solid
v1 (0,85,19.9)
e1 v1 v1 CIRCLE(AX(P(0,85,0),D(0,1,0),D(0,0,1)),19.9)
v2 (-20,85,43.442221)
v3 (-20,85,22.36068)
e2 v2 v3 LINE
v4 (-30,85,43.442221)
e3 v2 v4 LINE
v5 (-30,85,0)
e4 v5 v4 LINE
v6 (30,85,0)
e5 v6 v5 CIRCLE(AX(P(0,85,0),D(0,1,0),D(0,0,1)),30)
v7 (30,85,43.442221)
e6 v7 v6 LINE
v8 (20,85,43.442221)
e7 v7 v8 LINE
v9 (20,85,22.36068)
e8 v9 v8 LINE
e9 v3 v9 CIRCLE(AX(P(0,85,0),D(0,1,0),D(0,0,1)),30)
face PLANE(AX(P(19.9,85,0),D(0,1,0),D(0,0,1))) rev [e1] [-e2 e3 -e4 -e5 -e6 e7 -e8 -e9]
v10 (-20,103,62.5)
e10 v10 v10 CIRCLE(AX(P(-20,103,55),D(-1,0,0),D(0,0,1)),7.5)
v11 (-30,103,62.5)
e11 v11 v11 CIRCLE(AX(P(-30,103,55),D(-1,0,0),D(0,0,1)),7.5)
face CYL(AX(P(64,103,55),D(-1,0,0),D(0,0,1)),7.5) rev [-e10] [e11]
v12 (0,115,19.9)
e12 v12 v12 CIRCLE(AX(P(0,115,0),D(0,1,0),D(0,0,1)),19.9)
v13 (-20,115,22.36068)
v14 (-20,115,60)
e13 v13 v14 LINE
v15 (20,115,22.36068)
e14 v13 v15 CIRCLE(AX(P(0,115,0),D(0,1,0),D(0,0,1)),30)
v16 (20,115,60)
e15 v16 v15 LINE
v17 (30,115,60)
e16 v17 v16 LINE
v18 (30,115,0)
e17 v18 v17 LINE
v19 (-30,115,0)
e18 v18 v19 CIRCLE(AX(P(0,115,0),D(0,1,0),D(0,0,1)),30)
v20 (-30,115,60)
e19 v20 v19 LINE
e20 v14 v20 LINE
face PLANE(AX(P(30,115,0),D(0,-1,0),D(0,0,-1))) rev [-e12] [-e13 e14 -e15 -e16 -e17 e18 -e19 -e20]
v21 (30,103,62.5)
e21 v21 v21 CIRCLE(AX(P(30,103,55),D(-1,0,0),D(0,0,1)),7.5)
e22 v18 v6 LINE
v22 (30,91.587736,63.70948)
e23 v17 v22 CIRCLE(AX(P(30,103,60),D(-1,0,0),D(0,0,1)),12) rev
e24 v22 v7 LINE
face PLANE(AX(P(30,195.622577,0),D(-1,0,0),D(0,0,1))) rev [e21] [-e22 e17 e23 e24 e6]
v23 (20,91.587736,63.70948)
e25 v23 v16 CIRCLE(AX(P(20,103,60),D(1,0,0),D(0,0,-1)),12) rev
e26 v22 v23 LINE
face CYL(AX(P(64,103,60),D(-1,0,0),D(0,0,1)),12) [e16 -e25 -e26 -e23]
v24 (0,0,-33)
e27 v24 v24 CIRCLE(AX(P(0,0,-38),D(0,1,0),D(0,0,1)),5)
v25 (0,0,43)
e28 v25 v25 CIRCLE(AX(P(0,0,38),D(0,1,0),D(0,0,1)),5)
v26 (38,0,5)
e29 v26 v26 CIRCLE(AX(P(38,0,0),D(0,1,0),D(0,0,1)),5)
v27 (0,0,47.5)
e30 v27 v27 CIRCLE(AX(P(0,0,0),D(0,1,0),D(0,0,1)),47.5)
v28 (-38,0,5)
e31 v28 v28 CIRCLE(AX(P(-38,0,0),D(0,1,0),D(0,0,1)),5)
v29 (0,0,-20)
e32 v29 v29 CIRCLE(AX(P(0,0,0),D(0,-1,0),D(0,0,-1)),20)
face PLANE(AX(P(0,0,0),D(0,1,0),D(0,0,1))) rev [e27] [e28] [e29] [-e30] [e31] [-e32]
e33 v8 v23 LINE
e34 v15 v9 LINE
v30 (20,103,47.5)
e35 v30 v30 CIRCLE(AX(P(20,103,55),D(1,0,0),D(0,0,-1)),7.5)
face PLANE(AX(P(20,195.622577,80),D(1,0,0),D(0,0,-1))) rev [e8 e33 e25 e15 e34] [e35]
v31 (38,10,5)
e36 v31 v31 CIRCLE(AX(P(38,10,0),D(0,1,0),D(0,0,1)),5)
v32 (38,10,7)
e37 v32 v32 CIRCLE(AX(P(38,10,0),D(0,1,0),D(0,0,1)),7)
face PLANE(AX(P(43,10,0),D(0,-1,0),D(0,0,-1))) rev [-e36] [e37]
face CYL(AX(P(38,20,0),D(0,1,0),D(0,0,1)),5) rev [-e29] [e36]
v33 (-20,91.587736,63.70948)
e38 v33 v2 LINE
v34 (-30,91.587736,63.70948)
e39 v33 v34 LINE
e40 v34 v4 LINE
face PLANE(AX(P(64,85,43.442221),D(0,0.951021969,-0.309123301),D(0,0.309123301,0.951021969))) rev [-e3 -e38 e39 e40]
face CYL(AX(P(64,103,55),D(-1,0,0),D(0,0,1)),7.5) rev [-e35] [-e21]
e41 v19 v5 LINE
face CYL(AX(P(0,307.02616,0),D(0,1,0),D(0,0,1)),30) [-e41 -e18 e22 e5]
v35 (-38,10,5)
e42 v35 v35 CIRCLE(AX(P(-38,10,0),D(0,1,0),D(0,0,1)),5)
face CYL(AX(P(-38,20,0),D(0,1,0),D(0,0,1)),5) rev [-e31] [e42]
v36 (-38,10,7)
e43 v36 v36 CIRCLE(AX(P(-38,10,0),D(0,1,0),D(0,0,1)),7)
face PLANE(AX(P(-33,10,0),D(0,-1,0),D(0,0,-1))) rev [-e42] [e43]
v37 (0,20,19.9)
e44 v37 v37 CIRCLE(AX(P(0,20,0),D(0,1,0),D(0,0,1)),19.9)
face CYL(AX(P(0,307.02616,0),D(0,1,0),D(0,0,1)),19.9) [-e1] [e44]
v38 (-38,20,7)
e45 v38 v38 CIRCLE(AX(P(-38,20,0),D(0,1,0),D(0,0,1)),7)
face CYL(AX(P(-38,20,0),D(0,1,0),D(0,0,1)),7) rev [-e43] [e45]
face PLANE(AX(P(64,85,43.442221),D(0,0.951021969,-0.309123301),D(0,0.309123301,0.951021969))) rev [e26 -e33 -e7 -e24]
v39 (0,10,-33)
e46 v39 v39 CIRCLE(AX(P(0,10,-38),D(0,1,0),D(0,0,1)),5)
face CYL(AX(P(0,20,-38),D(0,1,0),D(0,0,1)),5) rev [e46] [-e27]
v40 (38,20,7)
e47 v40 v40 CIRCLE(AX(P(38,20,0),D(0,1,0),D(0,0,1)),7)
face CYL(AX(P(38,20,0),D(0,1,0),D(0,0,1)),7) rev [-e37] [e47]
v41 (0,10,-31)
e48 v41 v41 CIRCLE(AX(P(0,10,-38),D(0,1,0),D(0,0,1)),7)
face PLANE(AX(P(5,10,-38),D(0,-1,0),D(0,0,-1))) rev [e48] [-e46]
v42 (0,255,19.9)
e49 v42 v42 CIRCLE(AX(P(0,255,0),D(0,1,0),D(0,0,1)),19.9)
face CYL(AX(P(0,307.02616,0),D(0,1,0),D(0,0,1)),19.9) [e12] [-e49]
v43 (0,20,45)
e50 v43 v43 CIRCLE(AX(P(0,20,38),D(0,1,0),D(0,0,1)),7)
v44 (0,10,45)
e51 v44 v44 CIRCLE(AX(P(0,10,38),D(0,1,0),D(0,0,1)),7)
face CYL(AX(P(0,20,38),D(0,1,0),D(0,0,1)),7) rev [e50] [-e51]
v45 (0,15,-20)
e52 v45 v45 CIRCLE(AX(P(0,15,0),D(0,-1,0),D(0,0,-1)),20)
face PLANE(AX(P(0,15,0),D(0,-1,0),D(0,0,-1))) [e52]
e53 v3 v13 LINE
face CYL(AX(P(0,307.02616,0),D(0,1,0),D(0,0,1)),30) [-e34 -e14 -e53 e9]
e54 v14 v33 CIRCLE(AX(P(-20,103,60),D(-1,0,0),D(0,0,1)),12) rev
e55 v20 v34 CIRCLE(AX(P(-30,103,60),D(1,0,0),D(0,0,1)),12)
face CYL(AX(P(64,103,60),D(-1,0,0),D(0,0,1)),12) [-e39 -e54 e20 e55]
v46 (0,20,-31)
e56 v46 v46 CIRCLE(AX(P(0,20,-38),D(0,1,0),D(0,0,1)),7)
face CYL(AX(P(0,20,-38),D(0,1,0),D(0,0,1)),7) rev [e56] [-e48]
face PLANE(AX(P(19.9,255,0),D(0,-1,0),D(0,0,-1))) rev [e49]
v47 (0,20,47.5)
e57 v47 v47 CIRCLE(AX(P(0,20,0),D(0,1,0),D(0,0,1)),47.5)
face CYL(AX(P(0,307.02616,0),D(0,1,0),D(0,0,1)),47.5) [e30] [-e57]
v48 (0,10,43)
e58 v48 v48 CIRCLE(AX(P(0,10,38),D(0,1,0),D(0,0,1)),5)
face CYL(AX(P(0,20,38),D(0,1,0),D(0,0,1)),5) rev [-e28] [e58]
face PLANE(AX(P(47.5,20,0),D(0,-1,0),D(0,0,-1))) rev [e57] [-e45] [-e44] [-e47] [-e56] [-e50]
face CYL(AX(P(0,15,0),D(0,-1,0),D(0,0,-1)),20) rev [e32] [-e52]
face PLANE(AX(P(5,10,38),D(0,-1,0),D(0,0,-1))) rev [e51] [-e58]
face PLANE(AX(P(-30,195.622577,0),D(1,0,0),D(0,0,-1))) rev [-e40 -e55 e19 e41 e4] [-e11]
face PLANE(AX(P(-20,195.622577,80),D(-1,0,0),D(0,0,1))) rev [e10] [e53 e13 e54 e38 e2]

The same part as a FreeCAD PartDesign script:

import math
import FreeCAD as App
import Part
import Sketcher
Q = App.Units.Quantity

doc = App.newDocument("Part")
body = doc.addObject("PartDesign::Body", "Body")

sketch1 = body.newObject("Sketcher::SketchObject", "Sketch")
sketch1.AttachmentSupport = (doc.getObject("XY_Plane"), [""])
sketch1.MapMode = "FlatFace"
sketch1.addGeometry(Part.LineSegment(App.Vector(0, 0, 0), App.Vector(48, 0, 0)), False)
sketch1.addGeometry(Part.LineSegment(App.Vector(48, 0, 0), App.Vector(48, 20, 0)), False)
sketch1.addGeometry(Part.LineSegment(App.Vector(48, 20, 0), App.Vector(20, 20, 0)), False)
sketch1.addGeometry(Part.LineSegment(App.Vector(20, 20, 0), App.Vector(20, 85, 0)), False)
sketch1.addGeometry(Part.LineSegment(App.Vector(20, 85, 0), App.Vector(30, 85, 0)), False)
sketch1.addGeometry(Part.LineSegment(App.Vector(30, 85, 0), App.Vector(30, 115, 0)), False)
sketch1.addGeometry(Part.LineSegment(App.Vector(30, 115, 0), App.Vector(20, 115, 0)), False)
sketch1.addGeometry(Part.LineSegment(App.Vector(20, 115, 0), App.Vector(20, 255, 0)), False)
sketch1.addGeometry(Part.LineSegment(App.Vector(20, 255, 0), App.Vector(0, 255, 0)), False)
sketch1.addGeometry(Part.LineSegment(App.Vector(0, 255, 0), App.Vector(0, 0, 0)), False)
sketch1.addConstraint(Sketcher.Constraint("Coincident", 0, 2, 1, 1))
sketch1.addConstraint(Sketcher.Constraint("Coincident", 1, 2, 2, 1))
sketch1.addConstraint(Sketcher.Constraint("Coincident", 2, 2, 3, 1))
sketch1.addConstraint(Sketcher.Constraint("Coincident", 3, 2, 4, 1))
sketch1.addConstraint(Sketcher.Constraint("Coincident", 4, 2, 5, 1))
sketch1.addConstraint(Sketcher.Constraint("Coincident", 5, 2, 6, 1))
sketch1.addConstraint(Sketcher.Constraint("Coincident", 6, 2, 7, 1))
sketch1.addConstraint(Sketcher.Constraint("Coincident", 7, 2, 8, 1))
sketch1.addConstraint(Sketcher.Constraint("Coincident", 8, 2, 9, 1))
sketch1.addConstraint(Sketcher.Constraint("Coincident", 9, 2, 0, 1))
sketch1.addConstraint(Sketcher.Constraint("Horizontal", 0))
sketch1.addConstraint(Sketcher.Constraint("Vertical", 1))
sketch1.addConstraint(Sketcher.Constraint("Horizontal", 2))
sketch1.addConstraint(Sketcher.Constraint("Vertical", 3))
sketch1.addConstraint(Sketcher.Constraint("Horizontal", 4))
sketch1.addConstraint(Sketcher.Constraint("Vertical", 5))
sketch1.addConstraint(Sketcher.Constraint("Horizontal", 6))
sketch1.addConstraint(Sketcher.Constraint("Vertical", 7))
sketch1.addConstraint(Sketcher.Constraint("Horizontal", 8))
sketch1.addConstraint(Sketcher.Constraint("Vertical", 9))
sketch1.addConstraint(Sketcher.Constraint("Coincident", 9, 2, -1, 1))
sketch1.addConstraint(Sketcher.Constraint("Vertical", 3, 2, 6, 2))
sketch1.addConstraint(Sketcher.Constraint("DistanceY", 1, 1, 1, 2, Q("20 mm")))
sketch1.addConstraint(Sketcher.Constraint("DistanceY", 3, 1, 3, 2, Q("65 mm")))
sketch1.addConstraint(Sketcher.Constraint("DistanceY", 5, 1, 5, 2, Q("30 mm")))
sketch1.addConstraint(Sketcher.Constraint("DistanceY", 7, 1, 7, 2, Q("140 mm")))
sketch1.addConstraint(Sketcher.Constraint("DistanceX", 0, 1, 0, 2, Q("47.5 mm")))
sketch1.addConstraint(Sketcher.Constraint("DistanceX", 2, 2, 2, 1, Q("27.6 mm")))
sketch1.addConstraint(Sketcher.Constraint("DistanceX", 4, 1, 4, 2, Q("10.1 mm")))
revolution = body.newObject("PartDesign::Revolution", "Revolution")
revolution.Profile = sketch1
revolution.ReferenceAxis = (sketch1, ["V_Axis"])
revolution.Angle = 360

sketch2 = body.newObject("Sketcher::SketchObject", "Sketch001")
sketch2.AttachmentSupport = (doc.getObject("XZ_Plane"), [""])
sketch2.MapMode = "FlatFace"
sketch2.AttachmentOffset = App.Placement(App.Vector(0, 0, -85), App.Rotation())
sketch2.addGeometry(Part.LineSegment(App.Vector(-30, 0, 0), App.Vector(-30, 80, 0)), False)
sketch2.addGeometry(Part.LineSegment(App.Vector(-30, 80, 0), App.Vector(-20, 80, 0)), False)
sketch2.addGeometry(Part.LineSegment(App.Vector(-20, 80, 0), App.Vector(-20, 0, 0)), False)
sketch2.addGeometry(Part.LineSegment(App.Vector(-20, 0, 0), App.Vector(-30, 0, 0)), False)
sketch2.addGeometry(Part.LineSegment(App.Vector(20, 0, 0), App.Vector(20, 80, 0)), False)
sketch2.addGeometry(Part.LineSegment(App.Vector(20, 80, 0), App.Vector(30, 80, 0)), False)
sketch2.addGeometry(Part.LineSegment(App.Vector(30, 80, 0), App.Vector(30, 0, 0)), False)
sketch2.addGeometry(Part.LineSegment(App.Vector(30, 0, 0), App.Vector(20, 0, 0)), False)
sketch2.addConstraint(Sketcher.Constraint("Coincident", 0, 2, 1, 1))
sketch2.addConstraint(Sketcher.Constraint("Coincident", 1, 2, 2, 1))
sketch2.addConstraint(Sketcher.Constraint("Coincident", 2, 2, 3, 1))
sketch2.addConstraint(Sketcher.Constraint("Coincident", 3, 2, 0, 1))
sketch2.addConstraint(Sketcher.Constraint("Coincident", 4, 2, 5, 1))
sketch2.addConstraint(Sketcher.Constraint("Coincident", 5, 2, 6, 1))
sketch2.addConstraint(Sketcher.Constraint("Coincident", 6, 2, 7, 1))
sketch2.addConstraint(Sketcher.Constraint("Coincident", 7, 2, 4, 1))
sketch2.addConstraint(Sketcher.Constraint("Vertical", 0))
sketch2.addConstraint(Sketcher.Constraint("Horizontal", 1))
sketch2.addConstraint(Sketcher.Constraint("Vertical", 2))
sketch2.addConstraint(Sketcher.Constraint("Horizontal", 3))
sketch2.addConstraint(Sketcher.Constraint("Vertical", 4))
sketch2.addConstraint(Sketcher.Constraint("Horizontal", 5))
sketch2.addConstraint(Sketcher.Constraint("Vertical", 6))
sketch2.addConstraint(Sketcher.Constraint("Horizontal", 7))
sketch2.addConstraint(Sketcher.Constraint("Symmetric", 3, 2, 6, 2, -1, 1))
sketch2.addConstraint(Sketcher.Constraint("Symmetric", 1, 2, 4, 2, -2))
sketch2.addConstraint(Sketcher.Constraint("PointOnObject", 2, 2, -1))
sketch2.addConstraint(Sketcher.Constraint("DistanceX", 1, 1, 1, 2, Q("10 mm")))
sketch2.addConstraint(Sketcher.Constraint("DistanceY", 0, 1, 0, 2, Q("80 mm")))
sketch2.addConstraint(Sketcher.Constraint("DistanceX", 0, 2, -1, 1, Q("30 mm")))
pad1 = body.newObject("PartDesign::Pad", "Pad")
pad1.Profile = sketch2
pad1.Length = 30
pad1.Reversed = True

sketch3 = body.newObject("Sketcher::SketchObject", "Sketch002")
sketch3.AttachmentSupport = (doc.getObject("YZ_Plane"), [""])
sketch3.MapMode = "FlatFace"
sketch3.AttachmentOffset = App.Placement(App.Vector(0, 0, -30), App.Rotation())
sketch3.addGeometry(Part.Circle(App.Vector(103, 55, 0), App.Vector(0, 0, 1), 8), False)
sketch3.addGeometry(Part.LineSegment(App.Vector(92, 64, 0), App.Vector(85, 43, 0)), False)
sketch3.addGeometry(Part.LineSegment(App.Vector(85, 43, 0), App.Vector(85, 80, 0)), False)
sketch3.addGeometry(Part.LineSegment(App.Vector(85, 80, 0), App.Vector(115, 80, 0)), False)
sketch3.addGeometry(Part.LineSegment(App.Vector(115, 80, 0), App.Vector(115, 60, 0)), False)
sketch3.addGeometry(Part.ArcOfCircle(Part.Circle(App.Vector(103, 60, 0), App.Vector(0, 0, 1), 12), math.radians(0), math.radians(162)), False)
sketch3.addConstraint(Sketcher.Constraint("Coincident", 1, 2, 2, 1))
sketch3.addConstraint(Sketcher.Constraint("Coincident", 2, 2, 3, 1))
sketch3.addConstraint(Sketcher.Constraint("Coincident", 3, 2, 4, 1))
sketch3.addConstraint(Sketcher.Constraint("Tangent", 4, 2, 5, 1))
sketch3.addConstraint(Sketcher.Constraint("Tangent", 5, 2, 1, 1))
sketch3.addConstraint(Sketcher.Constraint("Vertical", 2))
sketch3.addConstraint(Sketcher.Constraint("Horizontal", 3))
sketch3.addConstraint(Sketcher.Constraint("Vertical", 4))
sketch3.addConstraint(Sketcher.Constraint("Vertical", 0, 3, 5, 3))
sketch3.addConstraint(Sketcher.Constraint("Diameter", 0, Q("15 mm")))
sketch3.addConstraint(Sketcher.Constraint("Radius", 5, Q("12 mm")))
sketch3.addConstraint(Sketcher.Constraint("DistanceX", 3, 1, 3, 2, Q("30 mm")))
sketch3.addConstraint(Sketcher.Constraint("DistanceY", 4, 2, 4, 1, Q("20 mm")))
sketch3.addConstraint(Sketcher.Constraint("DistanceX", -1, 1, 0, 3, Q("103 mm")))
sketch3.addConstraint(Sketcher.Constraint("DistanceY", -1, 1, 0, 3, Q("55 mm")))
sketch3.addConstraint(Sketcher.Constraint("DistanceY", -1, 1, 5, 3, Q("60 mm")))
sketch3.addConstraint(Sketcher.Constraint("DistanceY", 2, 1, 2, 2, Q("36.557779 mm")))
pocket1 = body.newObject("PartDesign::Pocket", "Pocket")
pocket1.Profile = sketch3
pocket1.Length = 94
pocket1.Reversed = True

sketch4 = body.newObject("Sketcher::SketchObject", "Sketch003")
sketch4.AttachmentSupport = (doc.getObject("XZ_Plane"), [""])
sketch4.MapMode = "FlatFace"
sketch4.AttachmentOffset = App.Placement(App.Vector(0, 0, -20), App.Rotation())
sketch4.addGeometry(Part.Circle(App.Vector(38, 0, 0), App.Vector(0, 0, 1), 5), False)
sketch4.addGeometry(Part.Circle(App.Vector(0, -38, 0), App.Vector(0, 0, 1), 5), False)
sketch4.addGeometry(Part.Circle(App.Vector(-38, 0, 0), App.Vector(0, 0, 1), 5), False)
sketch4.addGeometry(Part.Circle(App.Vector(0, 38, 0), App.Vector(0, 0, 1), 5), False)
sketch4.addConstraint(Sketcher.Constraint("Equal", 0, 1))
sketch4.addConstraint(Sketcher.Constraint("Equal", 1, 2))
sketch4.addConstraint(Sketcher.Constraint("Equal", 2, 3))
sketch4.addConstraint(Sketcher.Constraint("Symmetric", 0, 3, 2, 3, -1, 1))
sketch4.addConstraint(Sketcher.Constraint("Symmetric", 1, 3, 3, 3, -1, 1))
sketch4.addConstraint(Sketcher.Constraint("PointOnObject", 0, 3, -1))
sketch4.addConstraint(Sketcher.Constraint("PointOnObject", 1, 3, -2))
sketch4.addConstraint(Sketcher.Constraint("Diameter", 0, Q("10 mm")))
sketch4.addConstraint(Sketcher.Constraint("DistanceX", -1, 1, 0, 3, Q("38 mm")))
sketch4.addConstraint(Sketcher.Constraint("DistanceY", 1, 3, -1, 1, Q("38 mm")))
doc.recompute()
hole = body.newObject("PartDesign::Hole", "Hole")
hole.Profile = sketch4
hole.ThreadType = "None"
hole.Diameter = 10
hole.DepthType = "ThroughAll"
hole.HoleCutType = "Counterbore"
hole.HoleCutDiameter = 14
hole.HoleCutDepth = 10
hole.Reversed = True

sketch5 = body.newObject("Sketcher::SketchObject", "Sketch004")
sketch5.AttachmentSupport = (doc.getObject("XZ_Plane"), [""])
sketch5.MapMode = "FlatFace"
sketch5.addGeometry(Part.Circle(App.Vector(0, 0, 0), App.Vector(0, 0, 1), 20), False)
sketch5.addConstraint(Sketcher.Constraint("Coincident", 0, 3, -1, 1))
sketch5.addConstraint(Sketcher.Constraint("Diameter", 0, Q("40 mm")))
pocket2 = body.newObject("PartDesign::Pocket", "Pocket001")
pocket2.Profile = sketch5
pocket2.Length = 15

doc.recompute()
